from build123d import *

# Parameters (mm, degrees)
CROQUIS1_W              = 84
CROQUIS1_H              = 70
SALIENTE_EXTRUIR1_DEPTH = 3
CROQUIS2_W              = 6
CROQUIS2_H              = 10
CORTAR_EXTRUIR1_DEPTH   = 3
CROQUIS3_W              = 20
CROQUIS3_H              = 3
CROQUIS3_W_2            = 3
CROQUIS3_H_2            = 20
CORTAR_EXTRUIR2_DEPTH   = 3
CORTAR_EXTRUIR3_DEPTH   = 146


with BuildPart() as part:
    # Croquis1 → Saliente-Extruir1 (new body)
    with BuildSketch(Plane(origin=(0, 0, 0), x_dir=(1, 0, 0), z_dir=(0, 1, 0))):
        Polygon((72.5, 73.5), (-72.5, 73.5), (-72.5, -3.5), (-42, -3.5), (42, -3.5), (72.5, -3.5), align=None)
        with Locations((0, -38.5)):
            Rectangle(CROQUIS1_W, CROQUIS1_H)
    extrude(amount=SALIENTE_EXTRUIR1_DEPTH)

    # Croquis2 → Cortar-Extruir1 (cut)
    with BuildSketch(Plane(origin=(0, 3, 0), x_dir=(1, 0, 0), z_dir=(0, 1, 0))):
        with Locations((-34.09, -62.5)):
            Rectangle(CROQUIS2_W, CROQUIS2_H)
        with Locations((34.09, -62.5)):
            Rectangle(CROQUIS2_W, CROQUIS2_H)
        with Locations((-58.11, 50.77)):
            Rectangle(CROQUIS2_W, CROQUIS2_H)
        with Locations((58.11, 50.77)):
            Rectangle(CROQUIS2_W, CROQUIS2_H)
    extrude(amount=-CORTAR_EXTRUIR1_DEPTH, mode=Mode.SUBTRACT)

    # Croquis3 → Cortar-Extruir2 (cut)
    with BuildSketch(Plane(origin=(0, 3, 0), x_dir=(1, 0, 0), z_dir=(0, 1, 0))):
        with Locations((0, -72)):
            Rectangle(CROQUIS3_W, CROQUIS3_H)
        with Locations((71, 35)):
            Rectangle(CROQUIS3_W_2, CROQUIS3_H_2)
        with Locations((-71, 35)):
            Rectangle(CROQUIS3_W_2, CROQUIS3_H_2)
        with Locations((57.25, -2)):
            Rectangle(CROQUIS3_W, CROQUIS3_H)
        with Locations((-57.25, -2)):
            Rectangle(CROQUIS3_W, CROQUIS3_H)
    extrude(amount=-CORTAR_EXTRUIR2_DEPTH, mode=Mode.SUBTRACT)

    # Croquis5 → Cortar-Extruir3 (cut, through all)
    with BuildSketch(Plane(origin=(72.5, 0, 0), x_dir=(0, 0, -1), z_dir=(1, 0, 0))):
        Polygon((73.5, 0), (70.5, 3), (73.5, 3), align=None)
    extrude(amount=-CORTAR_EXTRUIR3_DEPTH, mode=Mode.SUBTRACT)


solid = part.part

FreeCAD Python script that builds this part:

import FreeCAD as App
import Part
import Sketcher
from FreeCAD import Vector


def add_polygon(sketch, points):
    """Adds a closed chain of lines whose ends are joined by coincident constraints."""
    first, n = sketch.GeometryCount, len(points)
    for a, b in zip(points, points[1:] + points[:1]):
        sketch.addGeometry(Part.LineSegment(App.Vector(*a, 0), App.Vector(*b, 0)), False)
    for i in range(n):
        sketch.addConstraint(Sketcher.Constraint("Coincident", first + i, 2, first + (i + 1) % n, 1))

doc = App.newDocument("Part")
body = doc.addObject("PartDesign::Body", "Body")

# Sketch on XZ plane
sketch1 = body.newObject("Sketcher::SketchObject", "Sketch")
sketch1.AttachmentSupport = (doc.getObject("XZ_Plane"), [""])
sketch1.MapMode = "FlatFace"
add_polygon(sketch1, [(72, -74), (-72, -74), (-72, 4), (-42, 4), (-42, 74), (42, 74), (42, 4), (72, 4)])  # lines 0-7
sketch1.addConstraint([
    Sketcher.Constraint("Horizontal", 0),
    Sketcher.Constraint("Vertical", 1),
    Sketcher.Constraint("Horizontal", 2),
    Sketcher.Constraint("Vertical", 3),
    Sketcher.Constraint("Horizontal", 4),
    Sketcher.Constraint("Vertical", 5),
    Sketcher.Constraint("Horizontal", 6),
    Sketcher.Constraint("Vertical", 7),
    Sketcher.Constraint("Symmetric", 2, 2, 5, 2, -2),
    Sketcher.Constraint("Equal", 2, 6),
    Sketcher.Constraint("DistanceX", 0, 2, 0, 1, 145.0),
    Sketcher.Constraint("DistanceX", 4, 1, 4, 2, 84.0),
    Sketcher.Constraint("DistanceY", 1, 1, 1, 2, 77.0),
    Sketcher.Constraint("DistanceY", 3, 1, 3, 2, 70.0),
    Sketcher.Constraint("DistanceY", 0, 2, -1, 1, 73.5),
])
pad1 = body.newObject("PartDesign::Pad", "Pad")
pad1.Profile = sketch1
pad1.Length = 3
pad1.Reversed = True

# Sketch on XZ plane
sketch2 = body.newObject("Sketcher::SketchObject", "Sketch001")
sketch2.AttachmentSupport = (doc.getObject("XZ_Plane"), [""])
sketch2.MapMode = "FlatFace"
sketch2.AttachmentOffset = App.Placement(Vector(0, 0, -3), App.Rotation())
add_polygon(sketch2, [(-37, 58), (-37, 68), (-31, 68), (-31, 58)])  # lines 0-3
add_polygon(sketch2, [(31, 58), (31, 68), (37, 68), (37, 58)])  # lines 4-7
add_polygon(sketch2, [(-61, -56), (-61, -46), (-55, -46), (-55, -56)])  # lines 8-11
add_polygon(sketch2, [(55, -56), (55, -46), (61, -46), (61, -56)])  # lines 12-15
sketch2.addConstraint([
    Sketcher.Constraint("Vertical", 0),
    Sketcher.Constraint("Horizontal", 1),
    Sketcher.Constraint("Vertical", 2),
    Sketcher.Constraint("Horizontal", 3),
    Sketcher.Constraint("Vertical", 4),
    Sketcher.Constraint("Horizontal", 5),
    Sketcher.Constraint("Vertical", 6),
    Sketcher.Constraint("Horizontal", 7),
    Sketcher.Constraint("Vertical", 8),
    Sketcher.Constraint("Horizontal", 9),
    Sketcher.Constraint("Vertical", 10),
    Sketcher.Constraint("Horizontal", 11),
    Sketcher.Constraint("Vertical", 12),
    Sketcher.Constraint("Horizontal", 13),
    Sketcher.Constraint("Vertical", 14),
    Sketcher.Constraint("Horizontal", 15),
    Sketcher.Constraint("Symmetric", 1, 2, 4, 2, -2),
    Sketcher.Constraint("Symmetric", 3, 2, 6, 2, -2),
    Sketcher.Constraint("Symmetric", 9, 2, 12, 2, -2),
    Sketcher.Constraint("Symmetric", 11, 2, 14, 2, -2),
    Sketcher.Constraint("Equal", 7, 9),
    Sketcher.Constraint("Equal", 6, 8),
    Sketcher.Constraint("DistanceX", 1, 1, 1, 2, 6.0),
    Sketcher.Constraint("DistanceY", 0, 1, 0, 2, 10.0),
    Sketcher.Constraint("DistanceY", -1, 1, 0, 2, 67.5),
    Sketcher.Constraint("DistanceX", 8, 2, 7, 2, 92.2),
    Sketcher.Constraint("DistanceX", 0, 2, -1, 1, 37.09),
    Sketcher.Constraint("DistanceY", 8, 2, -1, 1, 45.77),
])
pocket1 = body.newObject("PartDesign::Pocket", "Pocket")
pocket1.Profile = sketch2
pocket1.Length = 3
pocket1.Reversed = True

# Sketch on XZ plane
sketch3 = body.newObject("Sketcher::SketchObject", "Sketch002")
sketch3.AttachmentSupport = (doc.getObject("XZ_Plane"), [""])
sketch3.MapMode = "FlatFace"
sketch3.AttachmentOffset = App.Placement(Vector(0, 0, -3), App.Rotation())
add_polygon(sketch3, [(-10, 70.5), (-10, 73.5), (10, 73.5), (10, 70.5)])  # lines 0-3
add_polygon(sketch3, [(69.5, -45), (69.5, -25), (72.5, -25), (72.5, -45)])  # lines 4-7
add_polygon(sketch3, [(-72.5, -45), (-72.5, -25), (-69.5, -25), (-69.5, -45)])  # lines 8-11
add_polygon(sketch3, [(47.2, 0.5), (47.2, 3.5), (67.2, 3.5), (67.2, 0.5)])  # lines 12-15
add_polygon(sketch3, [(-67.2, 0.5), (-67.2, 3.5), (-47.2, 3.5), (-47.2, 0.5)])  # lines 16-19
sketch3.addConstraint([
    Sketcher.Constraint("Vertical", 0),
    Sketcher.Constraint("Horizontal", 1),
    Sketcher.Constraint("Vertical", 2),
    Sketcher.Constraint("Horizontal", 3),
    Sketcher.Constraint("Vertical", 4),
    Sketcher.Constraint("Horizontal", 5),
    Sketcher.Constraint("Vertical", 6),
    Sketcher.Constraint("Horizontal", 7),
    Sketcher.Constraint("Vertical", 8),
    Sketcher.Constraint("Horizontal", 9),
    Sketcher.Constraint("Vertical", 10),
    Sketcher.Constraint("Horizontal", 11),
    Sketcher.Constraint("Vertical", 12),
    Sketcher.Constraint("Horizontal", 13),
    Sketcher.Constraint("Vertical", 14),
    Sketcher.Constraint("Horizontal", 15),
    Sketcher.Constraint("Vertical", 16),
    Sketcher.Constraint("Horizontal", 17),
    Sketcher.Constraint("Vertical", 18),
    Sketcher.Constraint("Horizontal", 19),
    Sketcher.Constraint("Symmetric", 5, 2, 8, 2, -2),
    Sketcher.Constraint("Symmetric", 7, 2, 10, 2, -2),
    Sketcher.Constraint("Symmetric", 13, 2, 16, 2, -2),
    Sketcher.Constraint("Symmetric", 15, 2, 18, 2, -2),
    Sketcher.Constraint("Equal", 3, 13),
    Sketcher.Constraint("Equal", 11, 0),
    Sketcher.Constraint("Equal", 19, 4),
    Sketcher.Constraint("Equal", 2, 12),
    Sketcher.Constraint("DistanceX", 1, 1, 1, 2, 20.0),
    Sketcher.Constraint("DistanceX", 5, 1, 5, 2, 3.0),
    Sketcher.Constraint("DistanceX", 0, 2, -1, 1, 10.0),
    Sketcher.Constraint("DistanceY", 4, 2, -1, 1, 25.0),
    Sketcher.Constraint("DistanceX", 8, 2, 4, 2, 142.0),
    Sketcher.Constraint("DistanceY", 12, 2, 2, 2, 67.0),
    Sketcher.Constraint("DistanceY", -1, 1, 0, 2, 73.5),
    Sketcher.Constraint("DistanceX", -1, 1, 12, 2, 47.25),
])
pocket2 = body.newObject("PartDesign::Pocket", "Pocket001")
pocket2.Profile = sketch3
pocket2.Length = 3
pocket2.Reversed = True

# Sketch on YZ plane
sketch4 = body.newObject("Sketcher::SketchObject", "Sketch003")
sketch4.AttachmentSupport = (doc.getObject("YZ_Plane"), [""])
sketch4.MapMode = "FlatFace"
sketch4.AttachmentOffset = App.Placement(Vector(0, 0, 72.5), App.Rotation())
add_polygon(sketch4, [(3, -70.5), (0, -73.5), (3, -73.5)])  # lines 0-2
sketch4.addConstraint([
    Sketcher.Constraint("Horizontal", 1),
    Sketcher.Constraint("Vertical", 2),
    Sketcher.Constraint("PointOnObject", 0, 2, -2),
    Sketcher.Constraint("Equal", 1, 2),
    Sketcher.Constraint("DistanceX", 1, 1, 1, 2, 3.0),
    Sketcher.Constraint("DistanceY", 0, 2, -1, 1, 73.5),
])
pocket3 = body.newObject("PartDesign::Pocket", "Pocket002")
pocket3.Profile = sketch4
pocket3.Type = "ThroughAll"

doc.recompute()
